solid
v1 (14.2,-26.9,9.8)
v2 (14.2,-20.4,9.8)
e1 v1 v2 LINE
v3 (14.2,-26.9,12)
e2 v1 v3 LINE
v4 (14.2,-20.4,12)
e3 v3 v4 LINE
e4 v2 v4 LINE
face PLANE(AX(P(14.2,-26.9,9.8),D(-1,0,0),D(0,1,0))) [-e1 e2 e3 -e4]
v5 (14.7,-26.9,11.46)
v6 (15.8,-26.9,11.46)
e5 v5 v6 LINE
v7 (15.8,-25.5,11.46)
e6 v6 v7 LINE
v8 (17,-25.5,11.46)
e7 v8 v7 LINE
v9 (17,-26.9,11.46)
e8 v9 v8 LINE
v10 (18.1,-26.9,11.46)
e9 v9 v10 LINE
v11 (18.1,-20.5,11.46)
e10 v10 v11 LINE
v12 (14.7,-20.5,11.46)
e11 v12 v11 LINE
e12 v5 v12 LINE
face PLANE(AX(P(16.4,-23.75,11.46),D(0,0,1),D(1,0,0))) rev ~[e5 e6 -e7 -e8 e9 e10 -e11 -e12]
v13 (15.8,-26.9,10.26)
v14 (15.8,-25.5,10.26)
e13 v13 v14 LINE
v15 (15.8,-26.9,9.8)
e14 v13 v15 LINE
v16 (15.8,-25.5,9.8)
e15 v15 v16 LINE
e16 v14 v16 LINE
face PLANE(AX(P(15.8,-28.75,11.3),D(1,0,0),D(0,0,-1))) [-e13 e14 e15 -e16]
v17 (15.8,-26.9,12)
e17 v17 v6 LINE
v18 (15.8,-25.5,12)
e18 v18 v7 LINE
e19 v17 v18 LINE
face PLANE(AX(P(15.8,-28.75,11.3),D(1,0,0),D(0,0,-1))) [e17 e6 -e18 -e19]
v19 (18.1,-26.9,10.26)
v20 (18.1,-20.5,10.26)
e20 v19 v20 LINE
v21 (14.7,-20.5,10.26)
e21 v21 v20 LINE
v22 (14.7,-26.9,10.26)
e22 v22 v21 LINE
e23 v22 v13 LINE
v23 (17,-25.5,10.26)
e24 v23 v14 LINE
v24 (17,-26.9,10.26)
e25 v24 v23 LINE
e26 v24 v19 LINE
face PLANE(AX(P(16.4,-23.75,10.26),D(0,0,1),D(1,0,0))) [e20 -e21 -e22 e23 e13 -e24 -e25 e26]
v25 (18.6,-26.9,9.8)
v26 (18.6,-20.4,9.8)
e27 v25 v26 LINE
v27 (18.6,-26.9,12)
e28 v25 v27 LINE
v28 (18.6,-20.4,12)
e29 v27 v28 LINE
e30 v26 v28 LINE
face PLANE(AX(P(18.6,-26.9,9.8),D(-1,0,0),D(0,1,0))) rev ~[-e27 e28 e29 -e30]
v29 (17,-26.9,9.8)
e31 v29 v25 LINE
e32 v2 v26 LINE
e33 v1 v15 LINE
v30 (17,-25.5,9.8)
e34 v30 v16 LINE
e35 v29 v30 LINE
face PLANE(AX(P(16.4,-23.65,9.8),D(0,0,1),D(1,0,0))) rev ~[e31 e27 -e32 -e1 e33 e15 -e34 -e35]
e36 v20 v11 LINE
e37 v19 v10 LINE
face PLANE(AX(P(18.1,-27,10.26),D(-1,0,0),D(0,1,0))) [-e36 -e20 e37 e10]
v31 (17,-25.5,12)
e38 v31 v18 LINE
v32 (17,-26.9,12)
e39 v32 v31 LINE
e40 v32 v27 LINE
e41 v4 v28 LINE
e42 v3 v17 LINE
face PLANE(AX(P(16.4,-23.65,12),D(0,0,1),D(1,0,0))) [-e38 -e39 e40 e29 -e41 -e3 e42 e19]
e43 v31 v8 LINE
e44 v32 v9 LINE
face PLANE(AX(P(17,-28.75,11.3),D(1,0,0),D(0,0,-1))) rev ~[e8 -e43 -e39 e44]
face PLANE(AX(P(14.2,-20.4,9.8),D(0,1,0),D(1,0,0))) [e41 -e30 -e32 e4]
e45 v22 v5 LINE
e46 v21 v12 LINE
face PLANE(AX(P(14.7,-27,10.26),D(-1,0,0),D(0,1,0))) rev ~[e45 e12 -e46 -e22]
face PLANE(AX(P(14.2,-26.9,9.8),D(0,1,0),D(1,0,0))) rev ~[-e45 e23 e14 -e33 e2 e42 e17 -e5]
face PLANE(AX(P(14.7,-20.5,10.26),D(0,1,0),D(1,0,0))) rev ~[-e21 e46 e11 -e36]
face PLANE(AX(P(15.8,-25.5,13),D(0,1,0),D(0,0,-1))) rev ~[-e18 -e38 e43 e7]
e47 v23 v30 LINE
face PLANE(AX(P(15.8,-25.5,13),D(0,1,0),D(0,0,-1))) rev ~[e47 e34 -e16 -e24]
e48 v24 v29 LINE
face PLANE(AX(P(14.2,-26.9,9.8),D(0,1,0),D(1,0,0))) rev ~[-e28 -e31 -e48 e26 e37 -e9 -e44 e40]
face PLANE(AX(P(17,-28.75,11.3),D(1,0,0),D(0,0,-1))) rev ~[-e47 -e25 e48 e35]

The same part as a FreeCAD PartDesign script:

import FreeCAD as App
import Part
import Sketcher
from FreeCAD import Vector


def add_polygon(sketch, points):
    """Adds a closed chain of lines whose ends are joined by coincident constraints."""
    first, n = sketch.GeometryCount, len(points)
    for a, b in zip(points, points[1:] + points[:1]):
        sketch.addGeometry(Part.LineSegment(App.Vector(*a, 0), App.Vector(*b, 0)), False)
    for i in range(n):
        sketch.addConstraint(Sketcher.Constraint("Coincident", first + i, 2, first + (i + 1) % n, 1))

doc = App.newDocument("Part")
body = doc.addObject("PartDesign::Body", "Body")

# Sketch on YZ plane
sketch1 = body.newObject("Sketcher::SketchObject", "Sketch")
sketch1.AttachmentSupport = (doc.getObject("YZ_Plane"), [""])
sketch1.MapMode = "FlatFace"
sketch1.AttachmentOffset = App.Placement(Vector(0, 0, 15.8), App.Rotation())
add_polygon(sketch1, [(-25.5, 13), (-32, 13), (-32, 9.6), (-25.5, 9.6)])  # lines 0-3
sketch1.addConstraint([
    Sketcher.Constraint("Horizontal", 0),
    Sketcher.Constraint("Vertical", 1),
    Sketcher.Constraint("Horizontal", 2),
    Sketcher.Constraint("Vertical", 3),
    Sketcher.Constraint("DistanceX", 0, 2, 0, 1, 6.5),
    Sketcher.Constraint("DistanceY", 1, 2, 1, 1, 3.4),
    Sketcher.Constraint("DistanceX", 0, 2, -1, 1, 32.0),
    Sketcher.Constraint("DistanceY", -1, 1, 0, 2, 13.0),
])
pad1 = body.newObject("PartDesign::Pad", "Pad")
pad1.Profile = sketch1
pad1.Length = 1.2
body2 = doc.addObject("PartDesign::Body", "Body001")

# Sketch on XY plane
sketch2 = body2.newObject("Sketcher::SketchObject", "Sketch001")
sketch2.AttachmentSupport = (doc.getObject("XY_Plane001"), [""])
sketch2.MapMode = "FlatFace"
sketch2.AttachmentOffset = App.Placement(Vector(0, 0, 10.26), App.Rotation())
add_polygon(sketch2, [(14.7, -20.5), (14.7, -27), (18.1, -27), (18.1, -20.5)])  # lines 0-3
sketch2.addConstraint([
    Sketcher.Constraint("Vertical", 0),
    Sketcher.Constraint("Horizontal", 1),
    Sketcher.Constraint("Vertical", 2),
    Sketcher.Constraint("Horizontal", 3),
    Sketcher.Constraint("DistanceX", 1, 1, 1, 2, 3.4),
    Sketcher.Constraint("DistanceY", 0, 2, 0, 1, 6.5),
    Sketcher.Constraint("DistanceY", 0, 2, -1, 1, 27.0),
    Sketcher.Constraint("DistanceX", -1, 1, 0, 2, 14.7),
])
pad2 = body2.newObject("PartDesign::Pad", "Pad001")
pad2.Profile = sketch2
pad2.Length = 1.2
body3 = doc.addObject("PartDesign::Body", "Body002")

# Sketch on XY plane
sketch3 = body3.newObject("Sketcher::SketchObject", "Sketch002")
sketch3.AttachmentSupport = (doc.getObject("XY_Plane002"), [""])
sketch3.MapMode = "FlatFace"
sketch3.AttachmentOffset = App.Placement(Vector(0, 0, 9.8), App.Rotation())
add_polygon(sketch3, [(14.2, -20.4), (14.2, -26.9), (18.6, -26.9), (18.6, -20.4)])  # lines 0-3
sketch3.addConstraint([
    Sketcher.Constraint("Vertical", 0),
    Sketcher.Constraint("Horizontal", 1),
    Sketcher.Constraint("Vertical", 2),
    Sketcher.Constraint("Horizontal", 3),
    Sketcher.Constraint("DistanceX", 1, 1, 1, 2, 4.4),
    Sketcher.Constraint("DistanceY", 0, 2, 0, 1, 6.5),
    Sketcher.Constraint("DistanceX", -1, 1, 0, 2, 14.2),
    Sketcher.Constraint("DistanceY", 0, 2, -1, 1, 26.9),
])
pad3 = body3.newObject("PartDesign::Pad", "Pad002")
pad3.Profile = sketch3
pad3.Length = 2.2
doc.recompute()

boolean = body3.newObject("PartDesign::Boolean", "Boolean")
boolean.Type = "Cut"
boolean.addObjects([body2])
doc.recompute()

boolean2 = body3.newObject("PartDesign::Boolean", "Boolean001")
boolean2.Type = "Cut"
boolean2.addObjects([body])

doc.recompute()
